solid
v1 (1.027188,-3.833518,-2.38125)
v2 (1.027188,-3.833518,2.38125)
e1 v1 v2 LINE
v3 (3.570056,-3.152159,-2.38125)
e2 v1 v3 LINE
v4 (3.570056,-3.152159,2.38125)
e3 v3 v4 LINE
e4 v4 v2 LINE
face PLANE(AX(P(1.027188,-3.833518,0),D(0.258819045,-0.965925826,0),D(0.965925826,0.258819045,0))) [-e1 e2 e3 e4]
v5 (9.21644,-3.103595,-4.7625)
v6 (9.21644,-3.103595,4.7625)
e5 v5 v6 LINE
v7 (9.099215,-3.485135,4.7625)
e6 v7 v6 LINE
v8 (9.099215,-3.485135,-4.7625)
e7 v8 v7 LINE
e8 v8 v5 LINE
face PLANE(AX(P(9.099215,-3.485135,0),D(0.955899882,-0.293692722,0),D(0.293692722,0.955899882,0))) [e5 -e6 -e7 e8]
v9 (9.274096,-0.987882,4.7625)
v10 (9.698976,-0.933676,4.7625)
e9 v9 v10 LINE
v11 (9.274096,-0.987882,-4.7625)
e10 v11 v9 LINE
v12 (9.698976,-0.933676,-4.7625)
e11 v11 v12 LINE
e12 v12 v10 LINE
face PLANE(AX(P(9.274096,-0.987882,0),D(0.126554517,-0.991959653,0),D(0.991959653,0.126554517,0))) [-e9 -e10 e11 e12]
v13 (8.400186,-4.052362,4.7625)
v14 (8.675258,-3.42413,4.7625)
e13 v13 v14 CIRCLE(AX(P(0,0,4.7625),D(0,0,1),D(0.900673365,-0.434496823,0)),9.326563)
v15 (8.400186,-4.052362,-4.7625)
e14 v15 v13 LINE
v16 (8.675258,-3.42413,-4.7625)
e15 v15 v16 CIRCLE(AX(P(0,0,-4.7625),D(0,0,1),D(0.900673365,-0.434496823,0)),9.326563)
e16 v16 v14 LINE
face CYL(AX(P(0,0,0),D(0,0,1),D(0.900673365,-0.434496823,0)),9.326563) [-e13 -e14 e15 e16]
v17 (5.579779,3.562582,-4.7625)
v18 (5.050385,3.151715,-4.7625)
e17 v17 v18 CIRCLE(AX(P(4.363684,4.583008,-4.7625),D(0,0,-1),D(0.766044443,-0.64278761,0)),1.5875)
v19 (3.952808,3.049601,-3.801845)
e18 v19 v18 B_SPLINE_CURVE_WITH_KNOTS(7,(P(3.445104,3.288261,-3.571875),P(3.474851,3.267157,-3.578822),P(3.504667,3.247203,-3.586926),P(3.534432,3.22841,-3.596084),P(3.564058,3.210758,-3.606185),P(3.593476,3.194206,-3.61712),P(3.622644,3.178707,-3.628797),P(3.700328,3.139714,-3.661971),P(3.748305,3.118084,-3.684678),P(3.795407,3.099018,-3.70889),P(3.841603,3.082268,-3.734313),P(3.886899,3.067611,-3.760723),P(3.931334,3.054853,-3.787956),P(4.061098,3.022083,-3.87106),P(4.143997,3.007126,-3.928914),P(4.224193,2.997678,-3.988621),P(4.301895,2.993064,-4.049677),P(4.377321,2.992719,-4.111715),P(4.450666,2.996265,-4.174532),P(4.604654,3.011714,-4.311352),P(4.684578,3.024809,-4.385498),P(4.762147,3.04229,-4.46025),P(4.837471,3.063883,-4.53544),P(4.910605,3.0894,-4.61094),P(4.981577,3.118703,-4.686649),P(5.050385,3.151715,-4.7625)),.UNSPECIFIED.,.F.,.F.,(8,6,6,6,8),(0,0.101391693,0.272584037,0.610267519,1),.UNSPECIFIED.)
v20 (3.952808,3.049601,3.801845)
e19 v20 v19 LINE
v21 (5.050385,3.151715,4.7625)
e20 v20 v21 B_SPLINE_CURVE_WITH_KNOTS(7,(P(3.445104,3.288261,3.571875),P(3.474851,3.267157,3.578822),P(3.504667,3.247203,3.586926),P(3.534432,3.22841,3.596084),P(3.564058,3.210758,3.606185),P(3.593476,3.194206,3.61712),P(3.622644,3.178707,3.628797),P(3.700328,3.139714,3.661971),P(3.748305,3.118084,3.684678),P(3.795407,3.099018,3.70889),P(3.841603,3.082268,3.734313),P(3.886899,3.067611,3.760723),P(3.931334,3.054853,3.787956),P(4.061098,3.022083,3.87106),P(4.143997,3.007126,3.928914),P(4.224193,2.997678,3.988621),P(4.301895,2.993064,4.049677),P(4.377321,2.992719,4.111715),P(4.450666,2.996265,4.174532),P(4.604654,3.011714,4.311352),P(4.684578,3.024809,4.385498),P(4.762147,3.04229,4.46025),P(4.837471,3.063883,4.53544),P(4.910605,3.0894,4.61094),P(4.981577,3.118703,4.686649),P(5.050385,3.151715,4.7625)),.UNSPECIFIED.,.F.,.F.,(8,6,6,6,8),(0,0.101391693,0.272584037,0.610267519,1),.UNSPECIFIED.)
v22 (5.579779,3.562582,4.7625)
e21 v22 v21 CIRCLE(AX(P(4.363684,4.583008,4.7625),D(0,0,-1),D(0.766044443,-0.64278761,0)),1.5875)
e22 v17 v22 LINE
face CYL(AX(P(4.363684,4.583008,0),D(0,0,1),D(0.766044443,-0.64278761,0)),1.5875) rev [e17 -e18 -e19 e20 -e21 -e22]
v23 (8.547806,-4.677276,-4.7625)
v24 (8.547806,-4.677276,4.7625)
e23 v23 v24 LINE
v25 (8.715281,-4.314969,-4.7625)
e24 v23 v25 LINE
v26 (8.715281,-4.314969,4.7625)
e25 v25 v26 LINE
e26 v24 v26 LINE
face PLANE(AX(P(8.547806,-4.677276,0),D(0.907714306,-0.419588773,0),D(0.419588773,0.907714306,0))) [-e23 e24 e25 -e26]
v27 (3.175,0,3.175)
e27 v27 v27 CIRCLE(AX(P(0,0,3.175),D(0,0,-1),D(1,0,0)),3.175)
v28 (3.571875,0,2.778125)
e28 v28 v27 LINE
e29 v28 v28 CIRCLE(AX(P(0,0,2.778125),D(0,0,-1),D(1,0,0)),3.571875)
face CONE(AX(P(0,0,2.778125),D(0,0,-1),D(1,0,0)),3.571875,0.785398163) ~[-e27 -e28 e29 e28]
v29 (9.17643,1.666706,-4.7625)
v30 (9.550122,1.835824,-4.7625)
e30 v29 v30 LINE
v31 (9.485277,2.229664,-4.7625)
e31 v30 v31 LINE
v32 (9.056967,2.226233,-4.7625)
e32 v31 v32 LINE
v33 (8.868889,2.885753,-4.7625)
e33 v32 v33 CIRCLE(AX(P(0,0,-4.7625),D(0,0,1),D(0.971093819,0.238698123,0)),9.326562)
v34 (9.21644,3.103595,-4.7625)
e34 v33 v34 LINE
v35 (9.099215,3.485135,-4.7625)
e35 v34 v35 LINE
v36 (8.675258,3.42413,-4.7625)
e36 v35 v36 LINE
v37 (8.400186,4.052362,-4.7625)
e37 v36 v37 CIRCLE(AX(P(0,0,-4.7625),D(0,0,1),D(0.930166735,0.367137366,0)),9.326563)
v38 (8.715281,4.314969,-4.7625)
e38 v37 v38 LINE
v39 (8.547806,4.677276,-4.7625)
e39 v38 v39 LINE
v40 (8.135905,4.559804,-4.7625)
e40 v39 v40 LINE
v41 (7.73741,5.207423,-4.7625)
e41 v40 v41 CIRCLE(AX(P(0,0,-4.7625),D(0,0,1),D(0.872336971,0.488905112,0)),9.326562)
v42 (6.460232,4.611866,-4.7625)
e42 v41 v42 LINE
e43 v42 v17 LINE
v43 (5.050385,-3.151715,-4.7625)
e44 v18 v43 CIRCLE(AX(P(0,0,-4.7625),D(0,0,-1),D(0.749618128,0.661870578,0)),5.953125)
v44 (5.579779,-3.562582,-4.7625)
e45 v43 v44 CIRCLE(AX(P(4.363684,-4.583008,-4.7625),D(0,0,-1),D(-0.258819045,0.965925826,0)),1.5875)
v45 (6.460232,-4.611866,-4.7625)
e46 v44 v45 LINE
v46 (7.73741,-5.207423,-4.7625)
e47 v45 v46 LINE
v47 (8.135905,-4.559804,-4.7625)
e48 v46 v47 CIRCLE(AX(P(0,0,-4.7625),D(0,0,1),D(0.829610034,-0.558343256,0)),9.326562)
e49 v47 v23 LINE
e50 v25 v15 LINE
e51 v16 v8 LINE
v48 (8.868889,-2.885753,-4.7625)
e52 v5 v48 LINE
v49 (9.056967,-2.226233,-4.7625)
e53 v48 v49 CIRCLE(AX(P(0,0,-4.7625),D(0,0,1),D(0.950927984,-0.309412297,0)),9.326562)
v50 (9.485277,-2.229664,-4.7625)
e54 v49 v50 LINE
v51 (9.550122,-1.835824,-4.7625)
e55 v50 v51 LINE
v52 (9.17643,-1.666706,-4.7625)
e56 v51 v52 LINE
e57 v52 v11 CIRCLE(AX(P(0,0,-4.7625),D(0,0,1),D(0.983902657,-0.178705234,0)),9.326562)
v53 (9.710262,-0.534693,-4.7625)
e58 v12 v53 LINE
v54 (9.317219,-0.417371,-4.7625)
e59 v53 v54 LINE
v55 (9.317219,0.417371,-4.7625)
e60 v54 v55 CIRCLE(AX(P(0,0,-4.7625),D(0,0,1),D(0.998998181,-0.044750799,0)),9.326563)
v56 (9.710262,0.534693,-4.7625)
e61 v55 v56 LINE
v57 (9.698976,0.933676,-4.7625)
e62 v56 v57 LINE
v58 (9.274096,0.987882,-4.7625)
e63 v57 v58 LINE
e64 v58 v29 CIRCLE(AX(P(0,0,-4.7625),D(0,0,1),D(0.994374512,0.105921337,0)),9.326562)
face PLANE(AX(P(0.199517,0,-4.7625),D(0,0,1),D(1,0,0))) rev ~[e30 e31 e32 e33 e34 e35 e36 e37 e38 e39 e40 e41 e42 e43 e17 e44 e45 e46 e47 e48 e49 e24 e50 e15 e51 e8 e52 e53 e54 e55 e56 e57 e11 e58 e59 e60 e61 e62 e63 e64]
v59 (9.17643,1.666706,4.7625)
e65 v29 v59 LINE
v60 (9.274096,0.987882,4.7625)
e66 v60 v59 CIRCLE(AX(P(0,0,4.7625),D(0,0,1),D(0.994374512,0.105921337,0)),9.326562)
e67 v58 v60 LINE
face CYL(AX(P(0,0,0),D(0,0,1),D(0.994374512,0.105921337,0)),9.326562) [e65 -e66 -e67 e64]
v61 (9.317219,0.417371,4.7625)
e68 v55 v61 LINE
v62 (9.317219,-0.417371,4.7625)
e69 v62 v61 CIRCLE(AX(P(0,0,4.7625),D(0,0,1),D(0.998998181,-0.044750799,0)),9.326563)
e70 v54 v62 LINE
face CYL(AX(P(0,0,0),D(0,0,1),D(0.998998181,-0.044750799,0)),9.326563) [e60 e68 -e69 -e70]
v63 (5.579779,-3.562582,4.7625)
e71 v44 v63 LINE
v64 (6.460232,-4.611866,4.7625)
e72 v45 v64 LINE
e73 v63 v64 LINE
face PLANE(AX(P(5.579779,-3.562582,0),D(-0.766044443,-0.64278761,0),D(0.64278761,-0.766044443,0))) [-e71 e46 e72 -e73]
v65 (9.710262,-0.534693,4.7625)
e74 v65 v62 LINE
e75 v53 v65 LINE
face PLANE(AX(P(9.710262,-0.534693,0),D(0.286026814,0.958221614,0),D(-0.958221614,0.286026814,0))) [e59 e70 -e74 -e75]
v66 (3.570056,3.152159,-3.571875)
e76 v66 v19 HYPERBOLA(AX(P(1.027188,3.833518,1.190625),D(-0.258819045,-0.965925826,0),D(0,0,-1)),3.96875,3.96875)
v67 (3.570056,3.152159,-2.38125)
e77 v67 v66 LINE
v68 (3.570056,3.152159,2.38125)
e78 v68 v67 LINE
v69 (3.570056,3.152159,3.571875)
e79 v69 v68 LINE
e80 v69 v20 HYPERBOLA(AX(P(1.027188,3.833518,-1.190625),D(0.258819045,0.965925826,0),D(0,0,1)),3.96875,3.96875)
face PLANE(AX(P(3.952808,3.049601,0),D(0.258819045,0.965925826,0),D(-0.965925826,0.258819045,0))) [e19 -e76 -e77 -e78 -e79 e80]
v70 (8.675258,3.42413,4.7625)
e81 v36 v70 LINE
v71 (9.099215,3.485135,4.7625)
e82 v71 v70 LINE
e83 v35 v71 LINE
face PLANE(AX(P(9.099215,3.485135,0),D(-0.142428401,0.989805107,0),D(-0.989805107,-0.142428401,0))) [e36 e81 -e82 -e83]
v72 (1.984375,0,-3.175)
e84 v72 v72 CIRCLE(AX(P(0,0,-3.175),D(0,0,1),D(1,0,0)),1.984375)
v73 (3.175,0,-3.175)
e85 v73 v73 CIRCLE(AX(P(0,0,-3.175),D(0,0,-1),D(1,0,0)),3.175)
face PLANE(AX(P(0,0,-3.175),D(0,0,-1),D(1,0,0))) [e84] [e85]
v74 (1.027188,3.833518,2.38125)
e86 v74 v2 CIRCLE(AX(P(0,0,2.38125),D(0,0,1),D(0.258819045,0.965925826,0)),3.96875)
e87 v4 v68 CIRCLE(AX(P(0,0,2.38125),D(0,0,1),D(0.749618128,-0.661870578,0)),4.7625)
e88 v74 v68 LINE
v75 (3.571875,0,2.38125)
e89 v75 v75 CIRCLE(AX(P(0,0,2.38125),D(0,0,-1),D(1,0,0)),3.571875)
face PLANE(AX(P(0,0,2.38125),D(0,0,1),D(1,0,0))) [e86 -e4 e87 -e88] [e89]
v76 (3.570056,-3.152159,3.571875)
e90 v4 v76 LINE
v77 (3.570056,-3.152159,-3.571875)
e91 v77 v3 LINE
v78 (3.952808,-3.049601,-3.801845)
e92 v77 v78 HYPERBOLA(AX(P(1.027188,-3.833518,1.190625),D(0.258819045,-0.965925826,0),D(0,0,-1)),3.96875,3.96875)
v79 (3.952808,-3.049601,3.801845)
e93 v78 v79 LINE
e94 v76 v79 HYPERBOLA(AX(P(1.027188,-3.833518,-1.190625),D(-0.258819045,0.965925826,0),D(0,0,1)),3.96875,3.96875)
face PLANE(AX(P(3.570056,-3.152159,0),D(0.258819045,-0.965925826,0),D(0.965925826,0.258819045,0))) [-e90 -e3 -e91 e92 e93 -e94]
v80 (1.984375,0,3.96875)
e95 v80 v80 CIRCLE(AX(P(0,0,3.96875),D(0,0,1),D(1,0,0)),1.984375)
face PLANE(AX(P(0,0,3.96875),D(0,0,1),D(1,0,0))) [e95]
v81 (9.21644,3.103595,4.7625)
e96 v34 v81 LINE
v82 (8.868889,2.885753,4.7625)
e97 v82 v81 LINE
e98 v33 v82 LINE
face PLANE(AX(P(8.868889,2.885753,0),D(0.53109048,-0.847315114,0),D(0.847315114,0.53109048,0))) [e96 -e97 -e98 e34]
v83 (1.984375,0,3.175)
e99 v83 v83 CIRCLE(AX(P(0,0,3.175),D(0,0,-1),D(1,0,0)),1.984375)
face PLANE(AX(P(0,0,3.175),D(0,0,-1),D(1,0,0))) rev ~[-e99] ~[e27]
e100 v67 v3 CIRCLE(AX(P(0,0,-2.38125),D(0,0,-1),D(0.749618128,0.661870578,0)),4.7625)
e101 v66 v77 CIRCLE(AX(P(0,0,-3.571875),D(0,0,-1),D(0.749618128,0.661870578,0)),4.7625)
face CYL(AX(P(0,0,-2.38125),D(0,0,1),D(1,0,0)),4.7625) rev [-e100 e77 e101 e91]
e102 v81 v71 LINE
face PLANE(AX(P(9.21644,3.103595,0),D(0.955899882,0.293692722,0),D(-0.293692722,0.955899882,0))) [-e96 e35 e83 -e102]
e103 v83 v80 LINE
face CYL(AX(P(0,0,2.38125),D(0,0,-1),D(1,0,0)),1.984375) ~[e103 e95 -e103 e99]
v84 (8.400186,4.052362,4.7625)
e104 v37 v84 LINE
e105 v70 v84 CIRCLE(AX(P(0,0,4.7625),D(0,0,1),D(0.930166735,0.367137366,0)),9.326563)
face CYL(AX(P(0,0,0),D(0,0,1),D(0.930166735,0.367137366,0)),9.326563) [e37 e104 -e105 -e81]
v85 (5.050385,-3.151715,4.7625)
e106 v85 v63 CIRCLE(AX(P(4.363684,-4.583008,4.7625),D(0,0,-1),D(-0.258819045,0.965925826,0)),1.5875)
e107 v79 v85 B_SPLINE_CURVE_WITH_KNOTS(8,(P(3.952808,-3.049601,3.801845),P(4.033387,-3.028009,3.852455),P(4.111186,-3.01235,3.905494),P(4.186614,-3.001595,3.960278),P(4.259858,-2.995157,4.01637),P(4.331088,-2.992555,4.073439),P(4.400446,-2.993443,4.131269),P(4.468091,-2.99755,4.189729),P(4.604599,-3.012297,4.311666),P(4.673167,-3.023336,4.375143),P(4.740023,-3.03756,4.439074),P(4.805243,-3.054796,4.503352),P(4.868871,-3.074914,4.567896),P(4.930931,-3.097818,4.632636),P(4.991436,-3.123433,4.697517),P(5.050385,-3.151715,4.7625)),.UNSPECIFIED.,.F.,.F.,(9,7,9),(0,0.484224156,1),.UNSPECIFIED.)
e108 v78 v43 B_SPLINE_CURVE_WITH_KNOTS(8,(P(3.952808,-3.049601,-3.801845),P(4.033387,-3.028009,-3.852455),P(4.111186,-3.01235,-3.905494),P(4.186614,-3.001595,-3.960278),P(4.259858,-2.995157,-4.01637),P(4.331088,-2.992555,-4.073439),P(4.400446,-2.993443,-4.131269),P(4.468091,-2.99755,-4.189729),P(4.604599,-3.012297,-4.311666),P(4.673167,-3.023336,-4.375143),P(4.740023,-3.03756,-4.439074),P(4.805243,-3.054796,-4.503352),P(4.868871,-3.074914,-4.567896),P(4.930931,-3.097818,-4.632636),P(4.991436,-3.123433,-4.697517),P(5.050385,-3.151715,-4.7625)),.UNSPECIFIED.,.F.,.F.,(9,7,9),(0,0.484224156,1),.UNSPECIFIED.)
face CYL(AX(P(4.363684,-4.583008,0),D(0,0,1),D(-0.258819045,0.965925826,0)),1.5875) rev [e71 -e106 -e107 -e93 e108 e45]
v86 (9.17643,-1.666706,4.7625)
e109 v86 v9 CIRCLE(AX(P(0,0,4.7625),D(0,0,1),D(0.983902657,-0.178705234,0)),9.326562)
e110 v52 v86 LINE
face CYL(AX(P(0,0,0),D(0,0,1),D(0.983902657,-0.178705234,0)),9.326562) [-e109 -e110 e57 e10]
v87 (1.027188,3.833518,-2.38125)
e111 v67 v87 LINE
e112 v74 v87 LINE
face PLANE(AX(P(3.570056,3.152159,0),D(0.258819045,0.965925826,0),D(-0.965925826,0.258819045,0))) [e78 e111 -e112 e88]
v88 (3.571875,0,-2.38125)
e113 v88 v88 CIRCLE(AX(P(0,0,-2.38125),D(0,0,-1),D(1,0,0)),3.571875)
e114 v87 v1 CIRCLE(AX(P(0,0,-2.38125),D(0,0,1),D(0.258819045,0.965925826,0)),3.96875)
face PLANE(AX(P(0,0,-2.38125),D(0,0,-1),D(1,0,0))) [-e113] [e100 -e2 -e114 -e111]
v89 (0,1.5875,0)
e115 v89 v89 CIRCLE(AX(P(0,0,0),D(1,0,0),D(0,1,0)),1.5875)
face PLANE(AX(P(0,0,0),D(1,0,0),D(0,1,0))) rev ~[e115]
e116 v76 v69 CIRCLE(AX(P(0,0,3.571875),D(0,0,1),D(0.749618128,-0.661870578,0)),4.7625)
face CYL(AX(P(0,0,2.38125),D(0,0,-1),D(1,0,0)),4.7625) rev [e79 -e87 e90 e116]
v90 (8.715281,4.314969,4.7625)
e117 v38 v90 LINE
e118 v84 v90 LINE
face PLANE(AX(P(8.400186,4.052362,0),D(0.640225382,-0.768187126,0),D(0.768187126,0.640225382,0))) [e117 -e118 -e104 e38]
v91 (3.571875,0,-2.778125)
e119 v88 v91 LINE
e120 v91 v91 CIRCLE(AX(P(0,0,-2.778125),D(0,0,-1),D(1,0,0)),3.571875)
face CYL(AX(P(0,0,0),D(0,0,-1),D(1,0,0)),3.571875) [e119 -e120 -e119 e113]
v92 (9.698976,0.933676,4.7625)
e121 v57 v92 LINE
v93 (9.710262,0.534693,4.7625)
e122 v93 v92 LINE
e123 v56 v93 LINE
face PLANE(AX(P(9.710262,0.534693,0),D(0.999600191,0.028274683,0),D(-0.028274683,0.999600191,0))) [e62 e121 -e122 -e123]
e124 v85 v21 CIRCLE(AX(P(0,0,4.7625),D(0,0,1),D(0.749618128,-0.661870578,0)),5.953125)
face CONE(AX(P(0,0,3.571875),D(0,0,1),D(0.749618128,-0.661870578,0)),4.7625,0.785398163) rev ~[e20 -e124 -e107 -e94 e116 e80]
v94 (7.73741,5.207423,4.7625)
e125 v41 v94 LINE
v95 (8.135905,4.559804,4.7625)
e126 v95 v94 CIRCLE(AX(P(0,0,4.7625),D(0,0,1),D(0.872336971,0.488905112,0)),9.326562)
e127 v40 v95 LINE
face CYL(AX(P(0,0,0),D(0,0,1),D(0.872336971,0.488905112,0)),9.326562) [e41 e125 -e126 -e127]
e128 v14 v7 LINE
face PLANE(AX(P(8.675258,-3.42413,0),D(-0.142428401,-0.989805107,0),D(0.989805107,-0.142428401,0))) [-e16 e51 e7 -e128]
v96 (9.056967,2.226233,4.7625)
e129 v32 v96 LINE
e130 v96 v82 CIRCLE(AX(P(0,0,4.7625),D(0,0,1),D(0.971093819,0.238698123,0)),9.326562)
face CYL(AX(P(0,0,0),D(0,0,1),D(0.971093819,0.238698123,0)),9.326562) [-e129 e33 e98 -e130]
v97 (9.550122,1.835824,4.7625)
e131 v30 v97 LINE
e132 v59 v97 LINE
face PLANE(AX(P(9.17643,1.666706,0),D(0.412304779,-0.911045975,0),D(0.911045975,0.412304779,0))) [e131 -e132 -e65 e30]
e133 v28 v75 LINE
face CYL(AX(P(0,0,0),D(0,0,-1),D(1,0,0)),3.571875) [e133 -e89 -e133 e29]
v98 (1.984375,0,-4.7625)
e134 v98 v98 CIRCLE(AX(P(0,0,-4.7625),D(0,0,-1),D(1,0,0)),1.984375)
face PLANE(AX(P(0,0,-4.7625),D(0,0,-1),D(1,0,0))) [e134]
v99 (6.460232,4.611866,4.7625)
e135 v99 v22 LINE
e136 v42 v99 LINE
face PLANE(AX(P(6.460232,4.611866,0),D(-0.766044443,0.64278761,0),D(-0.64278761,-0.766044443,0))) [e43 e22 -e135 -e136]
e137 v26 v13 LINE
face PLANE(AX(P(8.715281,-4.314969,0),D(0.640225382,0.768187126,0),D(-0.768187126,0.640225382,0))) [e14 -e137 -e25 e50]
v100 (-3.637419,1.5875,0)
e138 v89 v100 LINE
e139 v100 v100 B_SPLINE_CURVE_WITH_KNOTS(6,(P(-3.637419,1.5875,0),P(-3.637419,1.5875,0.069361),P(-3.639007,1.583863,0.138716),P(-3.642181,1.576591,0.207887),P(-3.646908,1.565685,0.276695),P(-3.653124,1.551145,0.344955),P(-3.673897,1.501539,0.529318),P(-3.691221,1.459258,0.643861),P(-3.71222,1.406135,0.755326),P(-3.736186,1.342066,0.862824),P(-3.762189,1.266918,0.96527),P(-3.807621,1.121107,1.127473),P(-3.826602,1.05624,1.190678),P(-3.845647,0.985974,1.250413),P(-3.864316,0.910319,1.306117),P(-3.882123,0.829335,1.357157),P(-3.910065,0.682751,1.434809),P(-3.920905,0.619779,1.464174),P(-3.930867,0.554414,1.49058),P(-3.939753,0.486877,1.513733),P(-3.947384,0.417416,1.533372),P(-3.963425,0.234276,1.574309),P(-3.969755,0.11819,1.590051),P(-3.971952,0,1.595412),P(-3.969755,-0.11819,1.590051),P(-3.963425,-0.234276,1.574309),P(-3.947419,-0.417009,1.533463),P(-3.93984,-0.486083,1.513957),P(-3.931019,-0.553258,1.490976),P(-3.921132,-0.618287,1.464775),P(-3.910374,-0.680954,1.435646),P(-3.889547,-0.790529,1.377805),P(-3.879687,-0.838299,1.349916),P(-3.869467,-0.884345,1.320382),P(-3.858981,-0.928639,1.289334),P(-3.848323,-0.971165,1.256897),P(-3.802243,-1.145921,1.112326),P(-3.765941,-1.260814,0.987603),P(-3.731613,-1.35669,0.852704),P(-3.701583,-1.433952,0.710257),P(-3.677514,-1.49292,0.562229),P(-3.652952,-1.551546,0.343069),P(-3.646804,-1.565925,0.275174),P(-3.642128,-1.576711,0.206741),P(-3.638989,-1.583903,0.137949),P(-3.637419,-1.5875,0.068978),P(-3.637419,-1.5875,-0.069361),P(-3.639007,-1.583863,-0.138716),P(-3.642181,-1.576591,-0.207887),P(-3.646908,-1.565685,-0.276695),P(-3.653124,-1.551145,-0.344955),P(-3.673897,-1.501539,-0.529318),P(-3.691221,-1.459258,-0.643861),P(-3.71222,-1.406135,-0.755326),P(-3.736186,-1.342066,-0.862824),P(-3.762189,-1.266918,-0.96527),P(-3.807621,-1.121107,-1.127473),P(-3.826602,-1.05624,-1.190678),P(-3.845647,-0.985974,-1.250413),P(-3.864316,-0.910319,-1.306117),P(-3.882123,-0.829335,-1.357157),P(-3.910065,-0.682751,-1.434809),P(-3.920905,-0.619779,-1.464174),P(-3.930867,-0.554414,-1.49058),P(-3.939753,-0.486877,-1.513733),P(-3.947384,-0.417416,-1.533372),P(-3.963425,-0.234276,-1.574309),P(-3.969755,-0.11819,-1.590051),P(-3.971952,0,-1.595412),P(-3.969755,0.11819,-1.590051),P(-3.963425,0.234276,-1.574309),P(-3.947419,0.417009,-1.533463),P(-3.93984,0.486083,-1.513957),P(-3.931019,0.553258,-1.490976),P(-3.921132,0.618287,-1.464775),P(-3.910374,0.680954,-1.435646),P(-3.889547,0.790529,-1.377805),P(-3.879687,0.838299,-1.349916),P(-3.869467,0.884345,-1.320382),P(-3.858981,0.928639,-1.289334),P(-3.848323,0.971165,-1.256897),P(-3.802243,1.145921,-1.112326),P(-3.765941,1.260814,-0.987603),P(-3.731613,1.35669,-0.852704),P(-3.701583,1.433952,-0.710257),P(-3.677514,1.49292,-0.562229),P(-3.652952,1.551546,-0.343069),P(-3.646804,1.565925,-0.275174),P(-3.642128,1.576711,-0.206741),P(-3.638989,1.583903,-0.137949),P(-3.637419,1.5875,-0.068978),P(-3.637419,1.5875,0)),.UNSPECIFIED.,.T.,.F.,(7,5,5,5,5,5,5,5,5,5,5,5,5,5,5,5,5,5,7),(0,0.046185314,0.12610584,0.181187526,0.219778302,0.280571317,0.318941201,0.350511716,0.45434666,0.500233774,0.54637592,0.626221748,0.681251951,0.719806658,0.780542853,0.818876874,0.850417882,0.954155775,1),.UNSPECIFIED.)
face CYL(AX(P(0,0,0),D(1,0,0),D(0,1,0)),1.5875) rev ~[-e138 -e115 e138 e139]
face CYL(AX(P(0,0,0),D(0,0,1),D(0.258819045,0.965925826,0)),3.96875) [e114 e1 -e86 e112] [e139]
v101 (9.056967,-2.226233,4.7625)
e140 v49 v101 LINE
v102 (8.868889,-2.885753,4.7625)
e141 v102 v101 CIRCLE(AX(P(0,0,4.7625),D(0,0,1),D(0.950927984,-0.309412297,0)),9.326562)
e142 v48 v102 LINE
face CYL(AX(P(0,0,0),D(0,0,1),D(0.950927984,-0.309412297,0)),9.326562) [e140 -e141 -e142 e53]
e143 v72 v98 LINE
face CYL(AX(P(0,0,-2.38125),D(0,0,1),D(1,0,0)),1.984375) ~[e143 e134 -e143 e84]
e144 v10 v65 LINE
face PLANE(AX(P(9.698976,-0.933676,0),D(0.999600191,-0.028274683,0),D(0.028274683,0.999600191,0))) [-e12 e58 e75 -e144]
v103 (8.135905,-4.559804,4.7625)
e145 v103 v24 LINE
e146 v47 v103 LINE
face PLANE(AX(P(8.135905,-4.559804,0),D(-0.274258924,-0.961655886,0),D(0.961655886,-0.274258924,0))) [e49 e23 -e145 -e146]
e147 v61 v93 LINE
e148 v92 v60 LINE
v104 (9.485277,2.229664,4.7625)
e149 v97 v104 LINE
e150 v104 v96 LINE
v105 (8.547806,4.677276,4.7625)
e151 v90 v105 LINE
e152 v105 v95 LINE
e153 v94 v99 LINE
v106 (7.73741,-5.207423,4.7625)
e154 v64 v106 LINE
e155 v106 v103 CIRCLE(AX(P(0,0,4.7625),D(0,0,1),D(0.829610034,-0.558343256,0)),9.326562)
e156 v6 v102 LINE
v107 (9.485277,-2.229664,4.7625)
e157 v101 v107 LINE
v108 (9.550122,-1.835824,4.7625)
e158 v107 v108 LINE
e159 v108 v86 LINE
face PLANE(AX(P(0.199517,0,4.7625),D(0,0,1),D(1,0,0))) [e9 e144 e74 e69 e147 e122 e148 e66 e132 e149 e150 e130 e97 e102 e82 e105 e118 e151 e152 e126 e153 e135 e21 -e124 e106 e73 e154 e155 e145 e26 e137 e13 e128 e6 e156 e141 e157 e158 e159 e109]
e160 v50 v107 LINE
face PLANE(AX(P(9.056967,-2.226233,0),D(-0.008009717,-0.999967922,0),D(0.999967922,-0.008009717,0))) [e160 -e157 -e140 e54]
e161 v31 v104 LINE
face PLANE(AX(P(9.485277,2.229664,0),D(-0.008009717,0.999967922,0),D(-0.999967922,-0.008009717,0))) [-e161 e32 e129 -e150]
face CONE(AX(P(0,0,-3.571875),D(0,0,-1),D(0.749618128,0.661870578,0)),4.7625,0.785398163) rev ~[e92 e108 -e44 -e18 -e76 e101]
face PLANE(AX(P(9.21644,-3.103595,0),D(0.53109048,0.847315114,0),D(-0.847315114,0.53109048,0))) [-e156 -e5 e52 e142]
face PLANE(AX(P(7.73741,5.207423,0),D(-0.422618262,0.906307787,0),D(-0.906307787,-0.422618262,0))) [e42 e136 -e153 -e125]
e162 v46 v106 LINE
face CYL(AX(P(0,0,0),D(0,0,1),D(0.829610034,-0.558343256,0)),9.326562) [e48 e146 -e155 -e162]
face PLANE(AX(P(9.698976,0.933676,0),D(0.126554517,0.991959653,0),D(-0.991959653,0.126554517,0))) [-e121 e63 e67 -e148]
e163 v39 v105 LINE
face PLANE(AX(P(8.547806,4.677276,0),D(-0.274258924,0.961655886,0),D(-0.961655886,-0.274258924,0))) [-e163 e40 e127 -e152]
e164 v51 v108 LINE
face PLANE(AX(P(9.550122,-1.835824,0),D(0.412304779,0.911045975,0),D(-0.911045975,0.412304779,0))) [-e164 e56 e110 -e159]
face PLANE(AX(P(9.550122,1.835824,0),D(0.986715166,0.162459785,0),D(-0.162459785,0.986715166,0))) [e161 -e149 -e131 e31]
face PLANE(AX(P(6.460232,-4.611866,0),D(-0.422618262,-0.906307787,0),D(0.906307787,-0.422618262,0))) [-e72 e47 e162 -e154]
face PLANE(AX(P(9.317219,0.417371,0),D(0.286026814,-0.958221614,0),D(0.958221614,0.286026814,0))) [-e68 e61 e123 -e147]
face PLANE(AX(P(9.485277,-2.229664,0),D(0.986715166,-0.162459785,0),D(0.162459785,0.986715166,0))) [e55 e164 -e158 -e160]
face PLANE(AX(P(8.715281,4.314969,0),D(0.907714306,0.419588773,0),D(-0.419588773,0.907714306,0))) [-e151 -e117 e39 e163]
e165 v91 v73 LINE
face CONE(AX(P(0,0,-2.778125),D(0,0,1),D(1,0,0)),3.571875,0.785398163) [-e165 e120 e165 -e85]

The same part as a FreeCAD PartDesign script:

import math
import FreeCAD as App
import Part
import Sketcher
from FreeCAD import Vector
Q = App.Units.Quantity


def edges_at(feature, points):
    """Names of the edges that pass closest to the given points."""
    edges = feature.Shape.Edges
    near = lambda p: min(range(len(edges)), key=lambda i: edges[i].distToShape(Part.Vertex(*p))[0])
    return sorted({f"Edge{near(p) + 1}" for p in points})

doc = App.newDocument("Part")
body = doc.addObject("PartDesign::Body", "Body")

# Sketch on XY plane
sketch1 = doc.addObject("Sketcher::SketchObject", "Sketch")
body.addObject(sketch1)
sketch1.AttachmentSupport = (doc.XY_Plane, [""])
sketch1.MapMode = "FlatFace"
sketch1.addGeometry([
    Part.ArcOfCircle(Part.Circle(Vector(0, 0, 0), Vector(0, 0, 1), 3.97), math.radians(75), math.radians(285)),  # 0
    Part.LineSegment(Vector(1.03, -3.83, 0), Vector(3.57, -3.15, 0)),  # 1
    Part.LineSegment(Vector(3.57, -3.15, 0), Vector(3.95, -3.05, 0)),  # 2
    Part.ArcOfCircle(Part.Circle(Vector(4.36, -4.58, 0), Vector(0, 0, 1), 1.59), math.radians(40), math.radians(105)),  # 3
    Part.LineSegment(Vector(5.58, -3.56, 0), Vector(6.46, -4.61, 0)),  # 4
    Part.LineSegment(Vector(6.46, -4.61, 0), Vector(7.74, -5.21, 0)),  # 5
    Part.ArcOfCircle(Part.Circle(Vector(0, 0, 0), Vector(0, 0, 1), 9.33), math.radians(-33.94), math.radians(-29.27)),  # 6
    Part.LineSegment(Vector(8.14, -4.56, 0), Vector(8.55, -4.68, 0)),  # 7
    Part.LineSegment(Vector(8.55, -4.68, 0), Vector(8.72, -4.31, 0)),  # 8
    Part.LineSegment(Vector(8.72, -4.31, 0), Vector(8.4, -4.05, 0)),  # 9
    Part.ArcOfCircle(Part.Circle(Vector(0, 0, 0), Vector(0, 0, 1), 9.33), math.radians(-25.75), math.radians(-21.54)),  # 10
    Part.LineSegment(Vector(8.68, -3.42, 0), Vector(9.1, -3.49, 0)),  # 11
    Part.LineSegment(Vector(9.1, -3.49, 0), Vector(9.22, -3.1, 0)),  # 12
    Part.LineSegment(Vector(9.22, -3.1, 0), Vector(8.87, -2.89, 0)),  # 13
    Part.ArcOfCircle(Part.Circle(Vector(0, 0, 0), Vector(0, 0, 1), 9.33), math.radians(-18.02), math.radians(-13.81)),  # 14
    Part.LineSegment(Vector(9.06, -2.23, 0), Vector(9.49, -2.23, 0)),  # 15
    Part.LineSegment(Vector(9.49, -2.23, 0), Vector(9.55, -1.84, 0)),  # 16
    Part.LineSegment(Vector(9.55, -1.84, 0), Vector(9.18, -1.67, 0)),  # 17
    Part.ArcOfCircle(Part.Circle(Vector(0, 0, 0), Vector(0, 0, 1), 9.33), math.radians(-10.29), math.radians(-6.08)),  # 18
    Part.LineSegment(Vector(9.27, -0.99, 0), Vector(9.7, -0.93, 0)),  # 19
    Part.LineSegment(Vector(9.7, -0.93, 0), Vector(9.71, -0.53, 0)),  # 20
    Part.LineSegment(Vector(9.71, -0.53, 0), Vector(9.32, -0.42, 0)),  # 21
    Part.ArcOfCircle(Part.Circle(Vector(0, 0, 0), Vector(0, 0, 1), 9.33), math.radians(-2.56), math.radians(2.56)),  # 22
    Part.LineSegment(Vector(9.32, 0.42, 0), Vector(9.71, 0.53, 0)),  # 23
    Part.LineSegment(Vector(9.71, 0.53, 0), Vector(9.7, 0.93, 0)),  # 24
    Part.LineSegment(Vector(9.7, 0.93, 0), Vector(9.27, 0.99, 0)),  # 25
    Part.ArcOfCircle(Part.Circle(Vector(0, 0, 0), Vector(0, 0, 1), 9.33), math.radians(6.08), math.radians(10.29)),  # 26
    Part.LineSegment(Vector(9.18, 1.67, 0), Vector(9.55, 1.84, 0)),  # 27
    Part.LineSegment(Vector(9.55, 1.84, 0), Vector(9.49, 2.23, 0)),  # 28
    Part.LineSegment(Vector(9.49, 2.23, 0), Vector(9.06, 2.23, 0)),  # 29
    Part.ArcOfCircle(Part.Circle(Vector(0, 0, 0), Vector(0, 0, 1), 9.33), math.radians(13.81), math.radians(18.02)),  # 30
    Part.LineSegment(Vector(8.87, 2.89, 0), Vector(9.22, 3.1, 0)),  # 31
    Part.LineSegment(Vector(9.22, 3.1, 0), Vector(9.1, 3.49, 0)),  # 32
    Part.LineSegment(Vector(9.1, 3.49, 0), Vector(8.68, 3.42, 0)),  # 33
    Part.ArcOfCircle(Part.Circle(Vector(0, 0, 0), Vector(0, 0, 1), 9.33), math.radians(21.54), math.radians(25.75)),  # 34
    Part.LineSegment(Vector(8.4, 4.05, 0), Vector(8.72, 4.31, 0)),  # 35
    Part.LineSegment(Vector(8.72, 4.31, 0), Vector(8.55, 4.68, 0)),  # 36
    Part.LineSegment(Vector(8.55, 4.68, 0), Vector(8.14, 4.56, 0)),  # 37
    Part.ArcOfCircle(Part.Circle(Vector(0, 0, 0), Vector(0, 0, 1), 9.33), math.radians(29.27), math.radians(33.94)),  # 38
    Part.LineSegment(Vector(7.74, 5.21, 0), Vector(6.46, 4.61, 0)),  # 39
    Part.LineSegment(Vector(6.46, 4.61, 0), Vector(5.58, 3.56, 0)),  # 40
    Part.ArcOfCircle(Part.Circle(Vector(4.36, 4.58, 0), Vector(0, 0, 1), 1.59), math.radians(-105), math.radians(-40)),  # 41
    Part.LineSegment(Vector(3.95, 3.05, 0), Vector(3.57, 3.15, 0)),  # 42
    Part.LineSegment(Vector(3.57, 3.15, 0), Vector(1.03, 3.83, 0)),  # 43
], False)
sketch1.addConstraint([
    Sketcher.Constraint("Tangent", 0, 2, 1, 1),
    Sketcher.Constraint("Coincident", 1, 2, 2, 1),
    Sketcher.Constraint("Tangent", 2, 2, 3, 2),
    Sketcher.Constraint("Tangent", 3, 1, 4, 1),
    Sketcher.Constraint("Coincident", 4, 2, 5, 1),
    Sketcher.Constraint("Coincident", 5, 2, 6, 1),
    Sketcher.Constraint("Coincident", 6, 2, 7, 1),
    Sketcher.Constraint("Coincident", 7, 2, 8, 1),
    Sketcher.Constraint("Coincident", 8, 2, 9, 1),
    Sketcher.Constraint("Coincident", 9, 2, 10, 1),
    Sketcher.Constraint("Coincident", 10, 2, 11, 1),
    Sketcher.Constraint("Coincident", 11, 2, 12, 1),
    Sketcher.Constraint("Coincident", 12, 2, 13, 1),
    Sketcher.Constraint("Coincident", 13, 2, 14, 1),
    Sketcher.Constraint("Coincident", 14, 2, 15, 1),
    Sketcher.Constraint("Coincident", 15, 2, 16, 1),
    Sketcher.Constraint("Coincident", 16, 2, 17, 1),
    Sketcher.Constraint("Coincident", 17, 2, 18, 1),
    Sketcher.Constraint("Coincident", 18, 2, 19, 1),
    Sketcher.Constraint("Coincident", 19, 2, 20, 1),
    Sketcher.Constraint("Coincident", 20, 2, 21, 1),
    Sketcher.Constraint("Coincident", 21, 2, 22, 1),
    Sketcher.Constraint("Coincident", 22, 2, 23, 1),
    Sketcher.Constraint("Coincident", 23, 2, 24, 1),
    Sketcher.Constraint("Coincident", 24, 2, 25, 1),
    Sketcher.Constraint("Coincident", 25, 2, 26, 1),
    Sketcher.Constraint("Coincident", 26, 2, 27, 1),
    Sketcher.Constraint("Coincident", 27, 2, 28, 1),
    Sketcher.Constraint("Coincident", 28, 2, 29, 1),
    Sketcher.Constraint("Coincident", 29, 2, 30, 1),
    Sketcher.Constraint("Coincident", 30, 2, 31, 1),
    Sketcher.Constraint("Coincident", 31, 2, 32, 1),
    Sketcher.Constraint("Coincident", 32, 2, 33, 1),
    Sketcher.Constraint("Coincident", 33, 2, 34, 1),
    Sketcher.Constraint("Coincident", 34, 2, 35, 1),
    Sketcher.Constraint("Coincident", 35, 2, 36, 1),
    Sketcher.Constraint("Coincident", 36, 2, 37, 1),
    Sketcher.Constraint("Coincident", 37, 2, 38, 1),
    Sketcher.Constraint("Coincident", 38, 2, 39, 1),
    Sketcher.Constraint("Coincident", 39, 2, 40, 1),
    Sketcher.Constraint("Tangent", 40, 2, 41, 2),
    Sketcher.Constraint("Tangent", 41, 1, 42, 1),
    Sketcher.Constraint("Coincident", 42, 2, 43, 1),
    Sketcher.Constraint("Tangent", 43, 2, 0, 1),
    Sketcher.Constraint("Coincident", 0, 3, -1, 1),
    Sketcher.Constraint("Coincident", 6, 3, -1, 1),
    Sketcher.Constraint("Coincident", 10, 3, -1, 1),
    Sketcher.Constraint("Coincident", 14, 3, -1, 1),
    Sketcher.Constraint("Coincident", 18, 3, -1, 1),
    Sketcher.Constraint("Coincident", 22, 3, -1, 1),
    Sketcher.Constraint("Coincident", 26, 3, -1, 1),
    Sketcher.Constraint("Coincident", 30, 3, -1, 1),
    Sketcher.Constraint("Coincident", 34, 3, -1, 1),
    Sketcher.Constraint("Coincident", 38, 3, -1, 1),
    Sketcher.Constraint("Equal", 6, 10),
    Sketcher.Constraint("Equal", 10, 14),
    Sketcher.Constraint("Equal", 14, 18),
    Sketcher.Constraint("Equal", 18, 22),
    Sketcher.Constraint("Equal", 22, 26),
    Sketcher.Constraint("Equal", 26, 30),
    Sketcher.Constraint("Equal", 30, 34),
    Sketcher.Constraint("Equal", 34, 38),
    Sketcher.Constraint("Equal", 3, 41),
    Sketcher.Constraint("Symmetric", 3, 3, 41, 3, -1),
    Sketcher.Constraint("Symmetric", 20, 2, 23, 2, -1),
    Sketcher.Constraint("Symmetric", 19, 2, 24, 2, -1),
    Sketcher.Constraint("Symmetric", 16, 2, 27, 2, -1),
    Sketcher.Constraint("Symmetric", 15, 2, 28, 2, -1),
    Sketcher.Constraint("Symmetric", 12, 2, 31, 2, -1),
    Sketcher.Constraint("Symmetric", 11, 2, 32, 2, -1),
    Sketcher.Constraint("Symmetric", 8, 2, 35, 2, -1),
    Sketcher.Constraint("Symmetric", 7, 2, 36, 2, -1),
    Sketcher.Constraint("Symmetric", 4, 2, 39, 2, -1),
    Sketcher.Constraint("Symmetric", 1, 2, 42, 2, -1),
    Sketcher.Constraint("Parallel", 1, 2),
    Sketcher.Constraint("Vertical", 21, 2, 22, 2),
    Sketcher.Constraint("Vertical", 18, 2, 25, 2),
    Sketcher.Constraint("Vertical", 17, 2, 26, 2),
    Sketcher.Constraint("Vertical", 14, 2, 29, 2),
    Sketcher.Constraint("Vertical", 13, 2, 30, 2),
    Sketcher.Constraint("Vertical", 10, 2, 33, 2),
    Sketcher.Constraint("Vertical", 9, 2, 34, 2),
    Sketcher.Constraint("Vertical", 6, 2, 37, 2),
    Sketcher.Constraint("Vertical", 5, 2, 38, 2),
    Sketcher.Constraint("Equal", 7, 11),
    Sketcher.Constraint("Equal", 8, 12),
    Sketcher.Constraint("Equal", 9, 13),
    Sketcher.Constraint("Equal", 11, 15),
    Sketcher.Constraint("Equal", 12, 16),
    Sketcher.Constraint("Equal", 13, 17),
    Sketcher.Constraint("Equal", 15, 19),
    Sketcher.Constraint("Equal", 16, 20),
    Sketcher.Constraint("Equal", 17, 21),
    Sketcher.Constraint("Angle", 1, Q("15 deg")),
    Sketcher.Constraint("Angle", 4, Q("-50 deg")),
    Sketcher.Constraint("Angle", 5, Q("-25 deg")),
    Sketcher.Constraint("Radius", 0, Q("0.15625 in")),
    Sketcher.Constraint("Radius", 3, Q("0.0625 in")),
    Sketcher.Constraint("DistanceX", 2, 2, 5, 2, Q("0.1490001 in")),
    Sketcher.Constraint("Radius", 6, 9.326562),
    Sketcher.Constraint("DistanceY", 2, 2, -1, 1, 3.049601),
    Sketcher.Constraint("DistanceX", 6, 2, 7, 2, 0.4119),
    Sketcher.Constraint("DistanceX", 3, 1, 8, 2, 3.135502),
    Sketcher.Constraint("DistanceX", 15, 2, 19, 2, 0.213699),
    Sketcher.Constraint("Distance", 1, 2.632571),
    Sketcher.Constraint("Distance", 8, 0.399142),
    Sketcher.Constraint("Distance", 9, 0.410179),
    Sketcher.Constraint("DistanceY", 8, 2, -1, 1, 4.314969),
    Sketcher.Constraint("DistanceX", -1, 1, 10, 2, 8.675258),
    Sketcher.Constraint("DistanceX", -1, 1, 12, 2, 9.21644),
    Sketcher.Constraint("DistanceX", -1, 1, 13, 2, 8.868889),
    Sketcher.Constraint("DistanceX", -1, 1, 16, 2, 9.550122),
    Sketcher.Constraint("DistanceX", -1, 1, 17, 2, 9.17643),
    Sketcher.Constraint("DistanceY", 18, 2, -1, 1, 0.987882),
    Sketcher.Constraint("DistanceX", -1, 1, 20, 2, 9.710262),
    Sketcher.Constraint("DistanceX", -1, 1, 21, 2, 9.317219),
    Sketcher.Constraint("DistanceY", 5, 2, 6, 2, 0.647619),
])
pad1 = doc.addObject("PartDesign::Pad", "Pad")
body.addObject(pad1)
pad1.Profile = sketch1
pad1.Length = Q("0.375 in")
pad1.Midplane = True

# Sketch on XY plane
sketch2 = doc.addObject("Sketcher::SketchObject", "Sketch001")
body.addObject(sketch2)
sketch2.AttachmentSupport = (doc.XY_Plane, [""])
sketch2.MapMode = "FlatFace"
sketch2.AttachmentOffset = App.Placement(Vector(0, 0, 0.09375 * 25.4), App.Rotation())
sketch2.addGeometry(Part.Circle(Vector(0, 0, 0), Vector(0, 0, 1), 4.8), False)
sketch2.addConstraint([
    Sketcher.Constraint("Coincident", 0, 3, -1, 1),
    Sketcher.Constraint("Diameter", 0, Q("0.375 in")),
])
pocket1 = doc.addObject("PartDesign::Pocket", "Pocket")
body.addObject(pocket1)
pocket1.Profile = sketch2
pocket1.Length = Q("0.25 in")
pocket1.Reversed = True

# Sketch on XY plane
sketch3 = doc.addObject("Sketcher::SketchObject", "Sketch002")
body.addObject(sketch3)
sketch3.AttachmentSupport = (doc.XY_Plane, [""])
sketch3.MapMode = "FlatFace"
sketch3.AttachmentOffset = App.Placement(Vector(0, 0, -0.09375 * 25.4), App.Rotation())
sketch3.addGeometry(Part.Circle(Vector(0, 0, 0), Vector(0, 0, 1), 4.8), False)
sketch3.addConstraint([
    Sketcher.Constraint("Coincident", 0, 3, -1, 1),
    Sketcher.Constraint("Diameter", 0, Q("0.375 in")),
])
pocket2 = doc.addObject("PartDesign::Pocket", "Pocket001")
body.addObject(pocket2)
pocket2.Profile = sketch3
pocket2.Length = 4.29937

# Sketch on XY plane
sketch4 = doc.addObject("Sketcher::SketchObject", "Sketch003")
body.addObject(sketch4)
sketch4.AttachmentSupport = (doc.XY_Plane, [""])
sketch4.MapMode = "FlatFace"
sketch4.addGeometry(Part.Circle(Vector(0, 0, 0), Vector(0, 0, 1), 3.6), False)
sketch4.addConstraint([
    Sketcher.Constraint("Coincident", 0, 3, -1, 1),
    Sketcher.Constraint("Diameter", 0, Q("0.28125 in")),
])
pad2 = doc.addObject("PartDesign::Pad", "Pad001")
body.addObject(pad2)
pad2.Profile = sketch4
pad2.Length = Q("0.25 in")
pad2.Midplane = True

# Sketch on XY plane
sketch5 = doc.addObject("Sketcher::SketchObject", "Sketch004")
body.addObject(sketch5)
sketch5.AttachmentSupport = (doc.XY_Plane, [""])
sketch5.MapMode = "FlatFace"
sketch5.AttachmentOffset = App.Placement(Vector(0, 0, 0.09375 * 25.4), App.Rotation())
sketch5.addGeometry(Part.Circle(Vector(0, 0, 0), Vector(0, 0, 1), 2), False)
sketch5.addConstraint([
    Sketcher.Constraint("Coincident", 0, 3, -1, 1),
    Sketcher.Constraint("Diameter", 0, Q("0.15625 in")),
])
pad3 = doc.addObject("PartDesign::Pad", "Pad002")
body.addObject(pad3)
pad3.Profile = sketch5
pad3.Length = Q("0.0625 in")

# Sketch on XY plane
sketch6 = doc.addObject("Sketcher::SketchObject", "Sketch005")
body.addObject(sketch6)
sketch6.AttachmentSupport = (doc.XY_Plane, [""])
sketch6.MapMode = "FlatFace"
sketch6.AttachmentOffset = App.Placement(Vector(0, 0, -0.09375 * 25.4), App.Rotation())
sketch6.addGeometry(Part.Circle(Vector(0, 0, 0), Vector(0, 0, 1), 2), False)
sketch6.addConstraint([
    Sketcher.Constraint("Coincident", 0, 3, -1, 1),
    Sketcher.Constraint("Diameter", 0, Q("0.15625 in")),
])
pad4 = doc.addObject("PartDesign::Pad", "Pad003")
body.addObject(pad4)
pad4.Profile = sketch6
pad4.Length = Q("0.09375 in")
pad4.Reversed = True

# Sketch on YZ plane
sketch7 = doc.addObject("Sketcher::SketchObject", "Sketch006")
body.addObject(sketch7)
sketch7.AttachmentSupport = (doc.YZ_Plane, [""])
sketch7.MapMode = "FlatFace"
sketch7.addGeometry(Part.Circle(Vector(0, 0, 0), Vector(0, 0, 1), 1.6), False)
sketch7.addConstraint([
    Sketcher.Constraint("Coincident", 0, 3, -1, 1),
    Sketcher.Constraint("Diameter", 0, Q("0.125 in")),
])
pocket3 = doc.addObject("PartDesign::Pocket", "Pocket002")
body.addObject(pocket3)
pocket3.Profile = sketch7
pocket3.Length = 8.64375
doc.recompute()

chamfer = doc.addObject("PartDesign::Chamfer", "Chamfer")
body.addObject(chamfer)
chamfer.Base = (pocket3, edges_at(pocket3, [(4.763, 0, 4.763)]))
chamfer.ChamferType = "Two distances"
chamfer.Size = Q("0.046875 in")
chamfer.Size2 = Q("0.046875 in")
doc.recompute()

chamfer2 = doc.addObject("PartDesign::Chamfer", "Chamfer001")
body.addObject(chamfer2)
chamfer2.Base = (chamfer, edges_at(chamfer, [(4.763, 0, -4.763)]))
chamfer2.ChamferType = "Two distances"
chamfer2.Size = Q("0.046875 in")
chamfer2.Size2 = Q("0.046875 in")
doc.recompute()

chamfer3 = doc.addObject("PartDesign::Chamfer", "Chamfer002")
body.addObject(chamfer3)
chamfer3.Base = (chamfer2, edges_at(chamfer2, [(-3.572, 0, 3.175)]))
chamfer3.ChamferType = "Two distances"
chamfer3.Size = Q("0.015625 in")
chamfer3.Size2 = Q("0.015625 in")
doc.recompute()

chamfer4 = doc.addObject("PartDesign::Chamfer", "Chamfer003")
body.addObject(chamfer4)
chamfer4.Base = (chamfer3, edges_at(chamfer3, [(-3.572, 0, -3.175)]))
chamfer4.ChamferType = "Two distances"
chamfer4.Size = Q("0.015625 in")
chamfer4.Size2 = Q("0.015625 in")

doc.recompute()
